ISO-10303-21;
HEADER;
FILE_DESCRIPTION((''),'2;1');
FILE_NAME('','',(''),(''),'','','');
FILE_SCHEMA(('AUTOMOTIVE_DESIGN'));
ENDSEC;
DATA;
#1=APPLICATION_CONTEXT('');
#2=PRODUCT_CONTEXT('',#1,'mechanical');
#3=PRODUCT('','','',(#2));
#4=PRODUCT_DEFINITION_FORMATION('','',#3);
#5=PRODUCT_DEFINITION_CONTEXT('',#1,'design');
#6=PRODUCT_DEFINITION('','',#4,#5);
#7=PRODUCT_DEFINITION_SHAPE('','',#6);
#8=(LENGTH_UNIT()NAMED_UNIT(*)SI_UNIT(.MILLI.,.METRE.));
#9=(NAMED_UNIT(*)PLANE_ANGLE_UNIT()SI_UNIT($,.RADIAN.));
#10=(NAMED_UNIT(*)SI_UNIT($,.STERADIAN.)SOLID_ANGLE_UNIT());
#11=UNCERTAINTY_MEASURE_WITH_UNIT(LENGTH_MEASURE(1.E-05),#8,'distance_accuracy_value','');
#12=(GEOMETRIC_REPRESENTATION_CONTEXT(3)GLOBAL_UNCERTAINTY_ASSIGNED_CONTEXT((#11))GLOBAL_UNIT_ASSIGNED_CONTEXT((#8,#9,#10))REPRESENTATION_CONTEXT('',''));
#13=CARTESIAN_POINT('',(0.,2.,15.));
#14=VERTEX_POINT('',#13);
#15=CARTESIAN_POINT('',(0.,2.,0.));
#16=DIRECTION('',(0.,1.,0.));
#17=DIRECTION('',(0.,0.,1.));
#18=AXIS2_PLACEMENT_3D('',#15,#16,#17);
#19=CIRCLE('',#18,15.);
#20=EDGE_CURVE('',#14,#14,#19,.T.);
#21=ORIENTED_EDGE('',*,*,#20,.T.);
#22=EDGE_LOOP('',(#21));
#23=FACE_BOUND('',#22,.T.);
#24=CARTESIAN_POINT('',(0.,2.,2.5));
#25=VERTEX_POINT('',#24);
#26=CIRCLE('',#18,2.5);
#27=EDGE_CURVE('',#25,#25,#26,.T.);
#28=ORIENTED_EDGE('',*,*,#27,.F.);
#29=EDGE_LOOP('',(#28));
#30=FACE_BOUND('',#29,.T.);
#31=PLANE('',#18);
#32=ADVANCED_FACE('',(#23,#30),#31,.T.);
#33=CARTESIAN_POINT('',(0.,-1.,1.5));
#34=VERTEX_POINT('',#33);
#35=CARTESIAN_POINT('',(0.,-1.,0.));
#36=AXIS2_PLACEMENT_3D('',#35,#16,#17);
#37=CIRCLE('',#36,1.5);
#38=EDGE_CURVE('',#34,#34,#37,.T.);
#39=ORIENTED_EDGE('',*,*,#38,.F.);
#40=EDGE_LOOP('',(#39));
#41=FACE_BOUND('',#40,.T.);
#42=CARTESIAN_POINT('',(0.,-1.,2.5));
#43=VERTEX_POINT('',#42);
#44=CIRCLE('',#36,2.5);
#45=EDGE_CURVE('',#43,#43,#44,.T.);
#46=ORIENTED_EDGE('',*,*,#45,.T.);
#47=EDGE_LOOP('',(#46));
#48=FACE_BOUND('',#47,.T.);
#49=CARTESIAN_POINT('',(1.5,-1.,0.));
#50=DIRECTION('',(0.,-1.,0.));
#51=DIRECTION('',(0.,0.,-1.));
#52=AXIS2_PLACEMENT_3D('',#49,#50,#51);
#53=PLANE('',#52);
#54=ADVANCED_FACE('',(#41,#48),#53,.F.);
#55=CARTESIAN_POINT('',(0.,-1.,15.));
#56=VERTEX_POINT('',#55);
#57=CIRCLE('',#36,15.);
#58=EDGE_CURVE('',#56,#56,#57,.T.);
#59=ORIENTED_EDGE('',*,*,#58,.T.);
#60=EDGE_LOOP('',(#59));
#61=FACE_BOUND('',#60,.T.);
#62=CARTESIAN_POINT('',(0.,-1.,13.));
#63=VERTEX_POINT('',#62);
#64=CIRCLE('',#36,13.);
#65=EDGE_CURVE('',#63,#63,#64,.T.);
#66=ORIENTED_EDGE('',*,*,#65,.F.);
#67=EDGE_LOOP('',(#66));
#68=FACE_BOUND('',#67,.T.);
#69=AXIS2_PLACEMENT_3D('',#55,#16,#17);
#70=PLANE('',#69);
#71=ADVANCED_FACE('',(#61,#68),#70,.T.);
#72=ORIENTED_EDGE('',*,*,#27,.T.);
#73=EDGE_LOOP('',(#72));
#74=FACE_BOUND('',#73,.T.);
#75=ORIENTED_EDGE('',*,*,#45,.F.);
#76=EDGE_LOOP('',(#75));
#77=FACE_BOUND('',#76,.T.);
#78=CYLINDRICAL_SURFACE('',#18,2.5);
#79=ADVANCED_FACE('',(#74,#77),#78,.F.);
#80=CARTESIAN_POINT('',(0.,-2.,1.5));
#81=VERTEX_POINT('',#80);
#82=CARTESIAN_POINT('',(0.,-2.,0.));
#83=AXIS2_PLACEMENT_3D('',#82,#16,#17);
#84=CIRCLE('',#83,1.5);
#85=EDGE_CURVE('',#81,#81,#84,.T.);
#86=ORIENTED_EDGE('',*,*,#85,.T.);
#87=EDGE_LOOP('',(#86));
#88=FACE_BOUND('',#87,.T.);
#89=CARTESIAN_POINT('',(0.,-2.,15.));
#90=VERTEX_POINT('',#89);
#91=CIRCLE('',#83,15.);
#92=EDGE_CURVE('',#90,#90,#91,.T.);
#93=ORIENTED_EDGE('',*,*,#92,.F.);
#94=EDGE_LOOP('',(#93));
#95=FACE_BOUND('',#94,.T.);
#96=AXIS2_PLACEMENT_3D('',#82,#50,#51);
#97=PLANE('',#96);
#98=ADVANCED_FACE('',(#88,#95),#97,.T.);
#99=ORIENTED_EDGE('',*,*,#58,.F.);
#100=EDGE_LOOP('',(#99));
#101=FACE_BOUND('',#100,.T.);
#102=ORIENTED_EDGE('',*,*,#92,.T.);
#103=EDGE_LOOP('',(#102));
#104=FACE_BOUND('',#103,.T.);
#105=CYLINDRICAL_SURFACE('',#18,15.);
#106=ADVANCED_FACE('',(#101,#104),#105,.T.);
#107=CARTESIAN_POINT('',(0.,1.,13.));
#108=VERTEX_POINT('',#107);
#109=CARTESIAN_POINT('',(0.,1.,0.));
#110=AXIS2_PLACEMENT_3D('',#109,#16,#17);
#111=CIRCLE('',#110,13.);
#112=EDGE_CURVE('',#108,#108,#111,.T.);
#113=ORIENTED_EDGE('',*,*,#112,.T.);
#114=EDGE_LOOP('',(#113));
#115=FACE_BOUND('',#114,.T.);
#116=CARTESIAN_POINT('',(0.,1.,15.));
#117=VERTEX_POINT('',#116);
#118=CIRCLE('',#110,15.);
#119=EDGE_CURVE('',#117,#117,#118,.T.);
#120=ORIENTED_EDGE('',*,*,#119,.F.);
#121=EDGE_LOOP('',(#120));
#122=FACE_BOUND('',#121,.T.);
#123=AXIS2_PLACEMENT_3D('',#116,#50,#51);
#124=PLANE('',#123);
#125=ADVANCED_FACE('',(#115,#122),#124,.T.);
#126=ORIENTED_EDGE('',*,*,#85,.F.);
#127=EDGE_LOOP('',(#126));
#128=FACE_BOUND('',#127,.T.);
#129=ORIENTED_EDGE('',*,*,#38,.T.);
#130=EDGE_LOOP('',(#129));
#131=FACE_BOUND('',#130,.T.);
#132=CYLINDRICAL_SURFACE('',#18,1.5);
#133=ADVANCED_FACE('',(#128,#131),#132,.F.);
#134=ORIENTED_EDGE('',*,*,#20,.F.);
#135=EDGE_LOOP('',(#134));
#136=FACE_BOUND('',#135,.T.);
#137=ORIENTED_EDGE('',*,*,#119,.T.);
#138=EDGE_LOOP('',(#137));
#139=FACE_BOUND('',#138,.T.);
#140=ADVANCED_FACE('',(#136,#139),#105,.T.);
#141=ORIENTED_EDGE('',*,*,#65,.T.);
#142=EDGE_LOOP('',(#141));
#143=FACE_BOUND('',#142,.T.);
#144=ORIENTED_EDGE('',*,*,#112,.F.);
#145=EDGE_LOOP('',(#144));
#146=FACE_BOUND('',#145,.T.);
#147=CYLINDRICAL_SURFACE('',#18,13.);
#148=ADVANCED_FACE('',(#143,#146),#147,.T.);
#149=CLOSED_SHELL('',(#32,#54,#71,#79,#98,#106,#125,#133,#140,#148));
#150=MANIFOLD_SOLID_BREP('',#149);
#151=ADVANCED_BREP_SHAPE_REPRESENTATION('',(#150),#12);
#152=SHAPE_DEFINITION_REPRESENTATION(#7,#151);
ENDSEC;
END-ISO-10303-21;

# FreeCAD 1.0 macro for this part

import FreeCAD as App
import Part
import Sketcher

doc = App.newDocument("Part")
body = doc.addObject("PartDesign::Body", "Body")

sketch1 = body.newObject("Sketcher::SketchObject", "Sketch")
sketch1.AttachmentSupport = (doc.getObject("YZ_Plane"), [""])
sketch1.MapMode = "FlatFace"
sketch1.addGeometry([
    Part.LineSegment(App.Vector(2, 0, 0), App.Vector(2, 15, 0)),
    Part.LineSegment(App.Vector(2, 15, 0), App.Vector(1, 15, 0)),
    Part.LineSegment(App.Vector(1, 15, 0), App.Vector(1, 13, 0)),
    Part.LineSegment(App.Vector(1, 13, 0), App.Vector(-1, 13, 0)),
    Part.LineSegment(App.Vector(-1, 13, 0), App.Vector(-1, 15, 0)),
    Part.LineSegment(App.Vector(-1, 15, 0), App.Vector(-2, 15, 0)),
    Part.LineSegment(App.Vector(-2, 15, 0), App.Vector(-2, 0, 0)),
    Part.LineSegment(App.Vector(-2, 0, 0), App.Vector(2, 0, 0)),
], False)
sketch1.addConstraint([
    Sketcher.Constraint("Coincident", 0, 2, 1, 1),
    Sketcher.Constraint("Coincident", 1, 2, 2, 1),
    Sketcher.Constraint("Coincident", 2, 2, 3, 1),
    Sketcher.Constraint("Coincident", 3, 2, 4, 1),
    Sketcher.Constraint("Coincident", 4, 2, 5, 1),
    Sketcher.Constraint("Coincident", 5, 2, 6, 1),
    Sketcher.Constraint("Coincident", 6, 2, 7, 1),
    Sketcher.Constraint("Coincident", 7, 2, 0, 1),
    Sketcher.Constraint("Vertical", 0),
    Sketcher.Constraint("Horizontal", 1),
    Sketcher.Constraint("Vertical", 2),
    Sketcher.Constraint("Horizontal", 3),
    Sketcher.Constraint("Vertical", 4),
    Sketcher.Constraint("Horizontal", 5),
    Sketcher.Constraint("Vertical", 6),
    Sketcher.Constraint("Horizontal", 7),
    Sketcher.Constraint("Symmetric", 6, 2, 7, 2, -1, 1),
    Sketcher.Constraint("Symmetric", 1, 2, 4, 2, -2),
    Sketcher.Constraint("Equal", 3, 2),
    Sketcher.Constraint("DistanceX", 1, 2, 1, 1, 1.0),
    Sketcher.Constraint("DistanceX", 3, 2, 3, 1, 2.0),
    Sketcher.Constraint("DistanceY", 0, 1, 0, 2, 15.0),
])
revolution = body.newObject("PartDesign::Revolution", "Revolution")
revolution.Profile = sketch1
revolution.ReferenceAxis = (sketch1, ["H_Axis"])
revolution.Angle = 360

sketch2 = body.newObject("Sketcher::SketchObject", "Sketch001")
sketch2.AttachmentSupport = (doc.getObject("XZ_Plane"), [""])
sketch2.MapMode = "FlatFace"
sketch2.AttachmentOffset = App.Placement(App.Vector(0, 0, -2), App.Rotation())
sketch2.addGeometry(Part.Circle(App.Vector(0, 0, 0), App.Vector(0, 0, 1), 1.5), False)
sketch2.addConstraint([
    Sketcher.Constraint("Coincident", 0, 3, -1, 1),
    Sketcher.Constraint("Diameter", 0, 3.0),
])
doc.recompute()
hole = body.newObject("PartDesign::Hole", "Hole")
hole.Profile = sketch2
hole.ThreadType = "None"
hole.Diameter = 3
hole.DepthType = "ThroughAll"
hole.HoleCutType = "Counterbore"
hole.HoleCutDiameter = 5
hole.HoleCutDepth = 3
hole.Reversed = True

doc.recompute()
